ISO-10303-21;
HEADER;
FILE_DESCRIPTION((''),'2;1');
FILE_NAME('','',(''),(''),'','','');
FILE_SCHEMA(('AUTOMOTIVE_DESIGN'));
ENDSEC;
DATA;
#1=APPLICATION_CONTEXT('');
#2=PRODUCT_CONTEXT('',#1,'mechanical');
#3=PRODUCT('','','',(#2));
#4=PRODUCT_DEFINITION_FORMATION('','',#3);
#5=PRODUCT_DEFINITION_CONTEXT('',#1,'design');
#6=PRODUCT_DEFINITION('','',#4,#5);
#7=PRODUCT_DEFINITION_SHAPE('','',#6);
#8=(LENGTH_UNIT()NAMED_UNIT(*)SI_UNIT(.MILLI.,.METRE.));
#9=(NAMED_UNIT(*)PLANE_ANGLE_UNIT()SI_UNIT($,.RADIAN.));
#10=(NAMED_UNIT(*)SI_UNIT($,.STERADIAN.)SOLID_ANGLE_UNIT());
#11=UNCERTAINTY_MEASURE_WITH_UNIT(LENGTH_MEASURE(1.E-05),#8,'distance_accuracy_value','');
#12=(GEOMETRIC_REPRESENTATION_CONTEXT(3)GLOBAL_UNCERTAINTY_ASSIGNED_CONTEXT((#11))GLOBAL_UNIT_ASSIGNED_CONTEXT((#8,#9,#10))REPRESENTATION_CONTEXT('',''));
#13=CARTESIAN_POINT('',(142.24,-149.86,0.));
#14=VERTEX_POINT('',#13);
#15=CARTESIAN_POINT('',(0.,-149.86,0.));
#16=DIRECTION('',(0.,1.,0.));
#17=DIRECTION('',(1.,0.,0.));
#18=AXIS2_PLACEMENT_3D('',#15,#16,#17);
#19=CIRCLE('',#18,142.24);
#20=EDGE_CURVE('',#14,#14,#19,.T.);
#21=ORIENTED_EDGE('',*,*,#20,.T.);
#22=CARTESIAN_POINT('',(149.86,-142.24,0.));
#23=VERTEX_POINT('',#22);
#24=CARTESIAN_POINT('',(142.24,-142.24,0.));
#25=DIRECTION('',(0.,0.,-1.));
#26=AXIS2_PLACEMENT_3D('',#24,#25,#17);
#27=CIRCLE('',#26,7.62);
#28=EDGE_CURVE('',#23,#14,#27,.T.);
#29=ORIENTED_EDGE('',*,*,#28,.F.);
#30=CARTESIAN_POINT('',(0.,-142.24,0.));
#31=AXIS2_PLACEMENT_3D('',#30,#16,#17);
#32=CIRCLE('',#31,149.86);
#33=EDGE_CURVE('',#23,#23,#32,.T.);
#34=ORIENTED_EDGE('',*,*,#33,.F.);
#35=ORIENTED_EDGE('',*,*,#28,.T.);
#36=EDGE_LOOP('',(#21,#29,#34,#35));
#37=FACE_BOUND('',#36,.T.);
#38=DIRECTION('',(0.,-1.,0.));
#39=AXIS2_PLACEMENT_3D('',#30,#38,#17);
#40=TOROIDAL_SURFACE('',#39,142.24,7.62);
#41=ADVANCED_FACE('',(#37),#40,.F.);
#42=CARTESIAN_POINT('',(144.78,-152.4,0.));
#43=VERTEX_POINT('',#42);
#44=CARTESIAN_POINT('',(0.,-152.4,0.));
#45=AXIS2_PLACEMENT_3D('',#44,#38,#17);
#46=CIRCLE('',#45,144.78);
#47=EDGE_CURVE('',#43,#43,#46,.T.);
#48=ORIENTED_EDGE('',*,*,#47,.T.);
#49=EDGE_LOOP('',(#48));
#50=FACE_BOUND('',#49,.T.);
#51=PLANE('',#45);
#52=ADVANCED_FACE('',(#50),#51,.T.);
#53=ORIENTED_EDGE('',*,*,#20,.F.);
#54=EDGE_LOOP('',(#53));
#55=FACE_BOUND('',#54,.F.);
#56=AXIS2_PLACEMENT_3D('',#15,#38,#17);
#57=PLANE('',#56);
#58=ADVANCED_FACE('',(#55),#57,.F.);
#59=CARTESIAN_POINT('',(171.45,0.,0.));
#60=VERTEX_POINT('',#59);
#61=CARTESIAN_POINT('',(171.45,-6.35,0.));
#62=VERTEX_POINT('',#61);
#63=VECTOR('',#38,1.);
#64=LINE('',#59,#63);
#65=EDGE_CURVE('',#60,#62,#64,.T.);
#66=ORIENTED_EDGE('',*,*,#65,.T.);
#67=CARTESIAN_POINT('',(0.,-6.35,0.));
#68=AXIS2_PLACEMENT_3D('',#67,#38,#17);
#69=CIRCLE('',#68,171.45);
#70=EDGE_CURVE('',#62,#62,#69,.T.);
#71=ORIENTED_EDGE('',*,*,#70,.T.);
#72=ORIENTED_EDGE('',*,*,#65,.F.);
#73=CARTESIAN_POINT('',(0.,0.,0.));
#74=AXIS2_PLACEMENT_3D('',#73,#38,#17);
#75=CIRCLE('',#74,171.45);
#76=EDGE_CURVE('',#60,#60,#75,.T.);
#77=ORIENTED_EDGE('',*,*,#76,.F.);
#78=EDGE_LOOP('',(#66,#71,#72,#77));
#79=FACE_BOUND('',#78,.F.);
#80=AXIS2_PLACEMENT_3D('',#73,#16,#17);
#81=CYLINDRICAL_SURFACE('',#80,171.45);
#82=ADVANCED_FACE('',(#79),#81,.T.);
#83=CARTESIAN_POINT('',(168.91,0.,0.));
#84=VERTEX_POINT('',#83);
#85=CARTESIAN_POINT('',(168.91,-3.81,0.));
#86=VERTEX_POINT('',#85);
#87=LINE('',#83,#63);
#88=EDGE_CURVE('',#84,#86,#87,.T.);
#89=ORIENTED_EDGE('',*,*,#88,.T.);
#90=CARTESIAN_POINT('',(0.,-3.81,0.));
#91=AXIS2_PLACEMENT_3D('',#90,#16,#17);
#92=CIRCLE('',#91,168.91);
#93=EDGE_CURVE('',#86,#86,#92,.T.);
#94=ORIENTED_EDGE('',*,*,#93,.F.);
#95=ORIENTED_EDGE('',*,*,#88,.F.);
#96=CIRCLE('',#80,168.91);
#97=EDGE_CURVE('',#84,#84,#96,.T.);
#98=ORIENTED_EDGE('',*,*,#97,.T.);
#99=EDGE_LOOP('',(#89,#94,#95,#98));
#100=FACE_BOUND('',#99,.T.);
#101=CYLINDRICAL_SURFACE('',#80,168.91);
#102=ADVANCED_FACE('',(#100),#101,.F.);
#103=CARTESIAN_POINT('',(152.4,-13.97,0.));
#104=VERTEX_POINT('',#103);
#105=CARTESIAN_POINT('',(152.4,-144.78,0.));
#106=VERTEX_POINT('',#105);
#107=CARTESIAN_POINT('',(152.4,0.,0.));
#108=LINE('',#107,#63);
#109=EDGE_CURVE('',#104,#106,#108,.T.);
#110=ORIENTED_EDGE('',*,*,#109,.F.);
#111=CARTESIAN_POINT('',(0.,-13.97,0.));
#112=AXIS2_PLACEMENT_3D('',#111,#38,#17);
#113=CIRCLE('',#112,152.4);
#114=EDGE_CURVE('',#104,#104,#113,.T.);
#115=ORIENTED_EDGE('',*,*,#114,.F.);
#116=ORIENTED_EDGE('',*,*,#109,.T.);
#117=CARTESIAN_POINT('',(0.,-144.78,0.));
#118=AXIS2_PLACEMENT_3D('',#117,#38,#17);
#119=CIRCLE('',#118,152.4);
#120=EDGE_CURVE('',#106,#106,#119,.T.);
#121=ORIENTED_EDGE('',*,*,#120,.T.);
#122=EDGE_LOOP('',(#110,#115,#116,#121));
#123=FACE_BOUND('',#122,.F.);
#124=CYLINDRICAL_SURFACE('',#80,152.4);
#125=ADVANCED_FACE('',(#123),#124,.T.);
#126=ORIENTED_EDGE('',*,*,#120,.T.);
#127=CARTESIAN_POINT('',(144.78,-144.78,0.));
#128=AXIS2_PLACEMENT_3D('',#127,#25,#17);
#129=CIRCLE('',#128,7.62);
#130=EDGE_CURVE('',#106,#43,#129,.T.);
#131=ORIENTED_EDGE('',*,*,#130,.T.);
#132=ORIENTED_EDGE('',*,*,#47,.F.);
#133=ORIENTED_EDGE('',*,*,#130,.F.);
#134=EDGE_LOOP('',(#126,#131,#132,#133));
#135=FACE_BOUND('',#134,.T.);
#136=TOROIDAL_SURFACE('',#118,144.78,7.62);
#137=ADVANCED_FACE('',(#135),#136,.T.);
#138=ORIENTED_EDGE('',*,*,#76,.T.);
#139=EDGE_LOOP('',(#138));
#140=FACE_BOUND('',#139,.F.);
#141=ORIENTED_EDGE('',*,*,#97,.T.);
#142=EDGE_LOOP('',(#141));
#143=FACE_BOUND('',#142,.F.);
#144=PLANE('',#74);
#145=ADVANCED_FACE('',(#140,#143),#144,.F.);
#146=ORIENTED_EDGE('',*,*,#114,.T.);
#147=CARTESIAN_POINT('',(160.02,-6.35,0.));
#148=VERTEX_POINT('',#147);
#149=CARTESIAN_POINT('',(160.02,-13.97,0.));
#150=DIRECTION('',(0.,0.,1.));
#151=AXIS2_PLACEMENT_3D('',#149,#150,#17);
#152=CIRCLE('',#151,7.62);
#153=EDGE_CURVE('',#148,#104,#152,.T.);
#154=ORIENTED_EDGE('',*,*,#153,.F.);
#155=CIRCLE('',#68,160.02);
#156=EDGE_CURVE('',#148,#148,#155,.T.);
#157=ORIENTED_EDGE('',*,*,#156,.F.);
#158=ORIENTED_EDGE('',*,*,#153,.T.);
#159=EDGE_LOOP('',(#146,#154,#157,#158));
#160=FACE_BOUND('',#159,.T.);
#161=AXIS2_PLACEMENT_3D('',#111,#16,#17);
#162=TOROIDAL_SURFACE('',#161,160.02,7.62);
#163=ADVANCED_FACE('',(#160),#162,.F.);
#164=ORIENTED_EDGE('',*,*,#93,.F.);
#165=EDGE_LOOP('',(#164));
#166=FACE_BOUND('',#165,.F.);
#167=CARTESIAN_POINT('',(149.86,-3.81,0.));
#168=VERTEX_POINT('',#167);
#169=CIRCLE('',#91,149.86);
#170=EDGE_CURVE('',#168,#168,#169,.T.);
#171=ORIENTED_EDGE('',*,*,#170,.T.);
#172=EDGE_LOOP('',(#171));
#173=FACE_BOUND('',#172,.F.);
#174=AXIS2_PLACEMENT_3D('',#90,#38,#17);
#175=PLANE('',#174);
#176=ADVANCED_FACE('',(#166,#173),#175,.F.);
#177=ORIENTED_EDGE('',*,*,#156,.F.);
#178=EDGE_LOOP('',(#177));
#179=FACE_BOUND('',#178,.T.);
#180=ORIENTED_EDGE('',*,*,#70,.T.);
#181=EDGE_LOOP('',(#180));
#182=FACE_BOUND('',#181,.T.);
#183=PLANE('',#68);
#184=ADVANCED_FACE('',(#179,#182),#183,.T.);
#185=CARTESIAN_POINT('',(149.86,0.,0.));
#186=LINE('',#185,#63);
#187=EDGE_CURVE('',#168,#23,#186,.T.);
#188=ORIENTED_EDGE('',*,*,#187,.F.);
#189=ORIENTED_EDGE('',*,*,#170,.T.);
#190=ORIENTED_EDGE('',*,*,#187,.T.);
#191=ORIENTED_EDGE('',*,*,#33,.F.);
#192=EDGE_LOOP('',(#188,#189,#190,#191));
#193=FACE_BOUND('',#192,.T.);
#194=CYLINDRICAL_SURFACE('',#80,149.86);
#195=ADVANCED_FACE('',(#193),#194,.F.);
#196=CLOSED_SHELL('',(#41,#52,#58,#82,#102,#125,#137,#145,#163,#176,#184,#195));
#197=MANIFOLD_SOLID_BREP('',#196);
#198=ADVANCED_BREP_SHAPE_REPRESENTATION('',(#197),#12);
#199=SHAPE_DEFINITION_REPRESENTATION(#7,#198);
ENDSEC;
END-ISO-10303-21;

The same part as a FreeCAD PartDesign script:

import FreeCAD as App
import Part
import Sketcher
Q = App.Units.Quantity


def edges_at(feature, points):
    """Names of the edges that pass closest to the given points."""
    edges = feature.Shape.Edges
    near = lambda p: min(range(len(edges)), key=lambda i: edges[i].distToShape(Part.Vertex(*p))[0])
    return sorted({f"Edge{near(p) + 1}" for p in points})


def faces_at(feature, points):
    """Names of the faces that lie closest to the given points."""
    faces = feature.Shape.Faces
    near = lambda p: min(range(len(faces)), key=lambda i: faces[i].distToShape(Part.Vertex(*p))[0])
    return sorted({f"Face{near(p) + 1}" for p in points})

doc = App.newDocument("Part")
body = doc.addObject("PartDesign::Body", "Body")

# Sketch on XZ plane
sketch1 = body.newObject("Sketcher::SketchObject", "Sketch")
sketch1.AttachmentSupport = (doc.getObject("XZ_Plane"), [""])
sketch1.MapMode = "FlatFace"
sketch1.addGeometry(Part.Circle(App.Vector(0, 0, 0), App.Vector(0, 0, 1), 152.4), False)
sketch1.addConstraint([
    Sketcher.Constraint("Coincident", 0, 3, -1, 1),
    Sketcher.Constraint("Diameter", 0, Q("12 in")),
])
pad1 = body.newObject("PartDesign::Pad", "Pad")
pad1.Profile = sketch1
pad1.Length = Q("6 in")

# Sketch on XZ plane
sketch2 = body.newObject("Sketcher::SketchObject", "Sketch001")
sketch2.AttachmentSupport = (doc.getObject("XZ_Plane"), [""])
sketch2.MapMode = "FlatFace"
sketch2.addGeometry([
    Part.Circle(App.Vector(0, 0, 0), App.Vector(0, 0, 1), 171.45),
    Part.Circle(App.Vector(0, 0, 0), App.Vector(0, 0, 1), 152.4),
], False)
sketch2.addConstraint([
    Sketcher.Constraint("Coincident", 0, 3, -1, 1),
    Sketcher.Constraint("Coincident", 1, 3, -1, 1),
    Sketcher.Constraint("Diameter", 1, Q("12 in")),
    Sketcher.Constraint("Diameter", 0, Q("13.5 in")),
])
pad2 = body.newObject("PartDesign::Pad", "Pad001")
pad2.Profile = sketch2
pad2.Length = Q("0.25 in")
doc.recompute()

thickness = body.newObject("PartDesign::Thickness", "Thickness")
thickness.Base = (pad2, faces_at(pad2, [(0, 0, 0)]))
thickness.Value = Q("0.1 in")
thickness.Reversed = True
thickness.Join = "Intersection"
doc.recompute()

fillet = body.newObject("PartDesign::Fillet", "Fillet")
fillet.Base = (thickness, edges_at(thickness, [(-152.4, -152.4, 0), (-152.4, -6.35, 0), (-149.86, -149.86, 0)]))
fillet.Radius = Q("0.3 in")

doc.recompute()
